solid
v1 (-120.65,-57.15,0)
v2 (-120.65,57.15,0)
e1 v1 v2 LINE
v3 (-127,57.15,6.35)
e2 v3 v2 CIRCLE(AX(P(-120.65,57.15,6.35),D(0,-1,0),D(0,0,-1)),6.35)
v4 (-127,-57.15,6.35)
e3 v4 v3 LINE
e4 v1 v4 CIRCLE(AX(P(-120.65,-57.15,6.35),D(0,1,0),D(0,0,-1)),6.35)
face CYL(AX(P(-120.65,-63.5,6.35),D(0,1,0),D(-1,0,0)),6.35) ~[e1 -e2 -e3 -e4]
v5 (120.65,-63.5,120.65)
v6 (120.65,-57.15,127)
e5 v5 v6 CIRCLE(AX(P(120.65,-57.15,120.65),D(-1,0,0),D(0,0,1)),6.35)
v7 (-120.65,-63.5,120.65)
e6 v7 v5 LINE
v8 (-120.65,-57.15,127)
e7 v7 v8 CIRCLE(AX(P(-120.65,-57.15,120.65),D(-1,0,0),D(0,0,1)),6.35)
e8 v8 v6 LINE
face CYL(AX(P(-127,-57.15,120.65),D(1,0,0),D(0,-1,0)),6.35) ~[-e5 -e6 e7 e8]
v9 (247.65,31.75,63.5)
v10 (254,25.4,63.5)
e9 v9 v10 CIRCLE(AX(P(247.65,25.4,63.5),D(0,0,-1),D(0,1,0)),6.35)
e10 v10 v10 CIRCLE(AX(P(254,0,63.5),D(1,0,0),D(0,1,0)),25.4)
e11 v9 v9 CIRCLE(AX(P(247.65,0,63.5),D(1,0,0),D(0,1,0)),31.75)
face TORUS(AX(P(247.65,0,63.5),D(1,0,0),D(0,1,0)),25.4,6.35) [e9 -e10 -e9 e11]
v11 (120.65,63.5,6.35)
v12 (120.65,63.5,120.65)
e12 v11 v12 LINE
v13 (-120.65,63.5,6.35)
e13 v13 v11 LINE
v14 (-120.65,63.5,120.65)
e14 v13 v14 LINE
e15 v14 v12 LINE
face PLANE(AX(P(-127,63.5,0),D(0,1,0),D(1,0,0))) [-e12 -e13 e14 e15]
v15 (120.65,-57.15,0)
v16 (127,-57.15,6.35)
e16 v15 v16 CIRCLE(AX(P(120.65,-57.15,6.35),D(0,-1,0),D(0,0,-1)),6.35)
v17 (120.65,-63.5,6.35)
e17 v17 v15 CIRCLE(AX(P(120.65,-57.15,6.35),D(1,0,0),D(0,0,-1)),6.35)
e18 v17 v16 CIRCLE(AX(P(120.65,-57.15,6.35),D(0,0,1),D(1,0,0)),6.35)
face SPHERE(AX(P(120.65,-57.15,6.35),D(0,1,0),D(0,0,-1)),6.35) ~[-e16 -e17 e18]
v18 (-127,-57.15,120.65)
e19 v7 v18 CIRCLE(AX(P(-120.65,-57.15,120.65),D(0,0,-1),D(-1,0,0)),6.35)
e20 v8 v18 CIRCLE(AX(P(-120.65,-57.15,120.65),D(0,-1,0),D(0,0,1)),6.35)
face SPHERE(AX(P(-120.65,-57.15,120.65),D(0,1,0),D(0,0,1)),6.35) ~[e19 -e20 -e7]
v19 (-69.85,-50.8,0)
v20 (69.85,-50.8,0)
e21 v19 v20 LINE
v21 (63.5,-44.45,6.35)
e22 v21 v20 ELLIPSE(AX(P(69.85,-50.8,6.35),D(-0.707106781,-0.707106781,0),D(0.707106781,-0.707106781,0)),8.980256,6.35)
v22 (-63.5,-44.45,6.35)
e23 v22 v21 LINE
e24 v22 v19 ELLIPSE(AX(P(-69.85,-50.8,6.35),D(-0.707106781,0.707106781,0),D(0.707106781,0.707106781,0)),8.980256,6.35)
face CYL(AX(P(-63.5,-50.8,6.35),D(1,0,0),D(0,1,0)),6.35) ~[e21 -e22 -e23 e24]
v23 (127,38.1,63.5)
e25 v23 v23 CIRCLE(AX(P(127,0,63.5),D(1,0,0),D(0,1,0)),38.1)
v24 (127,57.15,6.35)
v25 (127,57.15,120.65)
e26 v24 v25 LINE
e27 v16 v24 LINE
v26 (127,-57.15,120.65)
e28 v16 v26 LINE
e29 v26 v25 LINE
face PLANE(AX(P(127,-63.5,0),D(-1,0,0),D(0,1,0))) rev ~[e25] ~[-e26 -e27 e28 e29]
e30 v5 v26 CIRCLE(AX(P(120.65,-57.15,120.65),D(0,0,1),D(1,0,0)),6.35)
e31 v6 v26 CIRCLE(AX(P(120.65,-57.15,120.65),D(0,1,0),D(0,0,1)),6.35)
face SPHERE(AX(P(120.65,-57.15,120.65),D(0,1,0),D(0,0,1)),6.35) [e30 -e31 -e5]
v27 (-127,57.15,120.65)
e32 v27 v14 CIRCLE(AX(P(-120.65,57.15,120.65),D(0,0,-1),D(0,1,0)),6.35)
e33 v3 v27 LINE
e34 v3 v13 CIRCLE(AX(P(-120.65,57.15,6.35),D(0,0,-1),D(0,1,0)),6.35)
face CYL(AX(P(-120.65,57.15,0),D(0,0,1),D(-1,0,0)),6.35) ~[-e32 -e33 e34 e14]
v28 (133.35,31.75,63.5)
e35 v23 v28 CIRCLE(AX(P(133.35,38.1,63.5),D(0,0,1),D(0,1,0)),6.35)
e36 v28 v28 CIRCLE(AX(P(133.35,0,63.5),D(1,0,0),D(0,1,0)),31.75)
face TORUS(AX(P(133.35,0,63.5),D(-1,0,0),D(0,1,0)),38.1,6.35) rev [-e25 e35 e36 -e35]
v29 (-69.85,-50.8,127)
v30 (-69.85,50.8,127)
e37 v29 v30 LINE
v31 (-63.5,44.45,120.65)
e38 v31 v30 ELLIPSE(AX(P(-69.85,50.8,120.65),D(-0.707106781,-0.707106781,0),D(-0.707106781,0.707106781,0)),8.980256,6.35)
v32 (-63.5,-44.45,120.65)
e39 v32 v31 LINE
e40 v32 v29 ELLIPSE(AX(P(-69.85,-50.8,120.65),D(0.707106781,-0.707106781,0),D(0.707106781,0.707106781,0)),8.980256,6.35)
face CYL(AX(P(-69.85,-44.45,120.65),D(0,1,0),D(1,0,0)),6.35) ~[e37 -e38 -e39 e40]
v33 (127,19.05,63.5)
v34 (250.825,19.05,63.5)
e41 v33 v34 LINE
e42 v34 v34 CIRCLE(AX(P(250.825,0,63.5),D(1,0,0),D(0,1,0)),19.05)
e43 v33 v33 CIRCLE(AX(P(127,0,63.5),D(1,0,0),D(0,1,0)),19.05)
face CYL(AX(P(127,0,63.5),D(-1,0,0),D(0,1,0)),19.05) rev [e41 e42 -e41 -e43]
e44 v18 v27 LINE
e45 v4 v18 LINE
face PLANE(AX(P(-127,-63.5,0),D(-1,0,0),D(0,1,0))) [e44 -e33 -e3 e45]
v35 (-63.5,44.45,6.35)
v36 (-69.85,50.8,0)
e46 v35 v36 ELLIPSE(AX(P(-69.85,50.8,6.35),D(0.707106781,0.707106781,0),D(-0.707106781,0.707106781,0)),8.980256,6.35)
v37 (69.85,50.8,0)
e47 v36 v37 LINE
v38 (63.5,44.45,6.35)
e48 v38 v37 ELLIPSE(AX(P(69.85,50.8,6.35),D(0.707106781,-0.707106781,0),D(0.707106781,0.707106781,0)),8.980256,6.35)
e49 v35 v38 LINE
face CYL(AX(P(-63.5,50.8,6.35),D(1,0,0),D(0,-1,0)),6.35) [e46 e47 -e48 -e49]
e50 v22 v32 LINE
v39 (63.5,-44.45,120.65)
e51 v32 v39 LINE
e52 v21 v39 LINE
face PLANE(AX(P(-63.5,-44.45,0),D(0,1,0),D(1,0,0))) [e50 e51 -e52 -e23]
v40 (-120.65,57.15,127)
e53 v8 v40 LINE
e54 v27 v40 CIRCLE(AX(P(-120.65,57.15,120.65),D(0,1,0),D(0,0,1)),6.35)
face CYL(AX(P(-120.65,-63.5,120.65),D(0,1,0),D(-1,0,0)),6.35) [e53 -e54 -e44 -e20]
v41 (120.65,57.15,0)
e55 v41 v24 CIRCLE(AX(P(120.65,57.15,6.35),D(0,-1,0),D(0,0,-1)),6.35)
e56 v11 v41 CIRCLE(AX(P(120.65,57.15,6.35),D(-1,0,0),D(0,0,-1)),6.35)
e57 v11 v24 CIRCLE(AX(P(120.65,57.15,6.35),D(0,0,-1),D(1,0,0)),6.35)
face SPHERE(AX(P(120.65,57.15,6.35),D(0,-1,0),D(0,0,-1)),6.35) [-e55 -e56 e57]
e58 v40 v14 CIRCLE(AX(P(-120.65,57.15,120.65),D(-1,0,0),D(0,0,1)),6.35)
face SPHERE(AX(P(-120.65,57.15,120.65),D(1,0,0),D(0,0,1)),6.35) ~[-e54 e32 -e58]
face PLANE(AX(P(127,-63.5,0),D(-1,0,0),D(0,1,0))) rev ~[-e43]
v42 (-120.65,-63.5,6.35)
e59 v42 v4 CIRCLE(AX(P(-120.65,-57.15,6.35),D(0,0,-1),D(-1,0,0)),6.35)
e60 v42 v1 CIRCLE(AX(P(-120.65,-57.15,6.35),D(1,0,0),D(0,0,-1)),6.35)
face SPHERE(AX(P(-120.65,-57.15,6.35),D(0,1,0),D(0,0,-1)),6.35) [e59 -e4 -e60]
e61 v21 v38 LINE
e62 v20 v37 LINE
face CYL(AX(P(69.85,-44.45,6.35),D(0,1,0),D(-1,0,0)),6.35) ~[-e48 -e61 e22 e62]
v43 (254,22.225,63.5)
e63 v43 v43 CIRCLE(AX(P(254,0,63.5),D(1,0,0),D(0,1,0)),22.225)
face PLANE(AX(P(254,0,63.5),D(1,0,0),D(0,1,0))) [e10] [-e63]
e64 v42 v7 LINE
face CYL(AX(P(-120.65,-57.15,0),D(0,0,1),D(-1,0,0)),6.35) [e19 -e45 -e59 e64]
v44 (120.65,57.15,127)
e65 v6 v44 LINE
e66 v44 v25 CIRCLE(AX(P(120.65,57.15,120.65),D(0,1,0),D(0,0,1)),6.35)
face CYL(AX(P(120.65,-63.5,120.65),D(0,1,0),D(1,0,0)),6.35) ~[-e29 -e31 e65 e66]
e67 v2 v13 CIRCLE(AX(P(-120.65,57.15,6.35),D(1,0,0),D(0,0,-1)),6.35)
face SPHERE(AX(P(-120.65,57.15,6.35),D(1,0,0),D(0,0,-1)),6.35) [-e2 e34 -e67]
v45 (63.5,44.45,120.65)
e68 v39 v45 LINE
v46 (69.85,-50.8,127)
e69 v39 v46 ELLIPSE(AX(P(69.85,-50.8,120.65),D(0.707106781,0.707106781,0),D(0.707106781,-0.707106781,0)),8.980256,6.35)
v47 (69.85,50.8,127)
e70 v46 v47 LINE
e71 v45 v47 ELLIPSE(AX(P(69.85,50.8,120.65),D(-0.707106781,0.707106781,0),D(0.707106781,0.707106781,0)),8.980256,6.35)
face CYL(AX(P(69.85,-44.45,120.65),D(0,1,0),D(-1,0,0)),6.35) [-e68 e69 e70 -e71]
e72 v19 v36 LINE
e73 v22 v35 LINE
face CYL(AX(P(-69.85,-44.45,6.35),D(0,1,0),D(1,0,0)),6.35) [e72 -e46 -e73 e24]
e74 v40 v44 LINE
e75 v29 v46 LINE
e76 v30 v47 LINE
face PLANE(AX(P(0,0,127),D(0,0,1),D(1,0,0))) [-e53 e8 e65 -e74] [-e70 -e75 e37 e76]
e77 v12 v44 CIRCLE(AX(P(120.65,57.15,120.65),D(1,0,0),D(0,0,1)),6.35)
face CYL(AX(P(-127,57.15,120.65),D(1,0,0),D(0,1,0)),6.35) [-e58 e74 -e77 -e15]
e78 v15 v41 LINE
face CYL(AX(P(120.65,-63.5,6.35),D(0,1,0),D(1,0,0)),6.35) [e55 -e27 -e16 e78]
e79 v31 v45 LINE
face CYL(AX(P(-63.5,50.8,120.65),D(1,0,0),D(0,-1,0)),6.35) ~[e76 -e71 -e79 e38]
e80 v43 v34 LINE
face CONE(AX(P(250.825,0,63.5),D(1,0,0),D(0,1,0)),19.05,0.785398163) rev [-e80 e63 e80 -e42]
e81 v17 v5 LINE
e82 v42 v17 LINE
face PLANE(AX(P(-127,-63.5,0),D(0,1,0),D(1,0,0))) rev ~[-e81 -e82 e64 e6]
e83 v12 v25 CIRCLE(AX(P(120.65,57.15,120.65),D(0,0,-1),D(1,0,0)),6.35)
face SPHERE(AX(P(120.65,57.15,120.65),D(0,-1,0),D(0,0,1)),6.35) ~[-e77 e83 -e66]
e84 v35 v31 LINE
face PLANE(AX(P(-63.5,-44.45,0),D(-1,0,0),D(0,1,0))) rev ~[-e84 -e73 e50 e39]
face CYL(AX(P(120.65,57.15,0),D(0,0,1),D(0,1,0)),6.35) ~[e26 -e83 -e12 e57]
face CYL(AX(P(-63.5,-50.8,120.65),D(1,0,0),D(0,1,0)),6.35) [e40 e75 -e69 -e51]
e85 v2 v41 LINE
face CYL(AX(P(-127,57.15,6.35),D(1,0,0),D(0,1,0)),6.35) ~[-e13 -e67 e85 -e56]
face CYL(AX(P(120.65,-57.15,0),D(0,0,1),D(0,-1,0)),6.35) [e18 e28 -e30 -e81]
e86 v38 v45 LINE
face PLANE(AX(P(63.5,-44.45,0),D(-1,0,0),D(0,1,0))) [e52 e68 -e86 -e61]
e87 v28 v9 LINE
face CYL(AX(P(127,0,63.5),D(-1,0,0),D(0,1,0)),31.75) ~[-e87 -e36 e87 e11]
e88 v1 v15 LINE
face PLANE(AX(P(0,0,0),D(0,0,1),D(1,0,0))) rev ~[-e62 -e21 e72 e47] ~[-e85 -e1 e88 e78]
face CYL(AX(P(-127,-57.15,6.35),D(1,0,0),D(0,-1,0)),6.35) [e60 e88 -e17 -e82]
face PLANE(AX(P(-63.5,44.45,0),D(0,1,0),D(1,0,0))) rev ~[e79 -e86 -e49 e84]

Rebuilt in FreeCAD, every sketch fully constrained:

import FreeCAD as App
import Part
import Sketcher

V = App.Vector
Q = App.Units.Quantity


def edges_at(feature, points):
    """Names of the edges that pass closest to the given points."""
    edges = feature.Shape.Edges
    near = lambda p: min(range(len(edges)), key=lambda i: edges[i].distToShape(Part.Vertex(*p))[0])
    return sorted({f"Edge{near(p) + 1}" for p in points})

doc = App.newDocument("Part")
body = doc.addObject("PartDesign::Body", "Body")

# Sketch on XY plane
sketch1 = body.newObject("Sketcher::SketchObject", "Sketch")
sketch1.AttachmentSupport = (doc.getObject("XY_Plane"), [""])
sketch1.MapMode = "FlatFace"
sketch1.addGeometry(Part.LineSegment(V(-127, 64, 0), V(-127, -64, 0)), False)
sketch1.addGeometry(Part.LineSegment(V(-127, -64, 0), V(127, -64, 0)), False)
sketch1.addGeometry(Part.LineSegment(V(127, -64, 0), V(127, 64, 0)), False)
sketch1.addGeometry(Part.LineSegment(V(127, 64, 0), V(-127, 64, 0)), False)
sketch1.addGeometry(Part.LineSegment(V(64, -44, 0), V(-64, -44, 0)), False)
sketch1.addGeometry(Part.LineSegment(V(-64, -44, 0), V(-64, 44, 0)), False)
sketch1.addGeometry(Part.LineSegment(V(-64, 44, 0), V(64, 44, 0)), False)
sketch1.addGeometry(Part.LineSegment(V(64, 44, 0), V(64, -44, 0)), False)
sketch1.addConstraint(Sketcher.Constraint("Coincident", 0, 2, 1, 1))
sketch1.addConstraint(Sketcher.Constraint("Coincident", 1, 2, 2, 1))
sketch1.addConstraint(Sketcher.Constraint("Coincident", 2, 2, 3, 1))
sketch1.addConstraint(Sketcher.Constraint("Coincident", 3, 2, 0, 1))
sketch1.addConstraint(Sketcher.Constraint("Coincident", 4, 2, 5, 1))
sketch1.addConstraint(Sketcher.Constraint("Coincident", 5, 2, 6, 1))
sketch1.addConstraint(Sketcher.Constraint("Coincident", 6, 2, 7, 1))
sketch1.addConstraint(Sketcher.Constraint("Coincident", 7, 2, 4, 1))
sketch1.addConstraint(Sketcher.Constraint("Vertical", 0))
sketch1.addConstraint(Sketcher.Constraint("Horizontal", 1))
sketch1.addConstraint(Sketcher.Constraint("Vertical", 2))
sketch1.addConstraint(Sketcher.Constraint("Horizontal", 3))
sketch1.addConstraint(Sketcher.Constraint("Horizontal", 4))
sketch1.addConstraint(Sketcher.Constraint("Vertical", 5))
sketch1.addConstraint(Sketcher.Constraint("Horizontal", 6))
sketch1.addConstraint(Sketcher.Constraint("Vertical", 7))
sketch1.addConstraint(Sketcher.Constraint("Symmetric", 0, 2, 2, 2, -1, 1))
sketch1.addConstraint(Sketcher.Constraint("Symmetric", 4, 2, 6, 2, -1, 1))
sketch1.addConstraint(Sketcher.Constraint("Equal", 6, 0))
sketch1.addConstraint(Sketcher.Constraint("DistanceX", 1, 1, 1, 2, Q("10 in")))
sketch1.addConstraint(Sketcher.Constraint("DistanceX", 4, 2, 4, 1, Q("5 in")))
sketch1.addConstraint(Sketcher.Constraint("DistanceY", 5, 1, 5, 2, Q("3.5 in")))
pad1 = body.newObject("PartDesign::Pad", "Pad")
pad1.Profile = sketch1
pad1.Length = Q("5 in")
doc.recompute()

fillet = body.newObject("PartDesign::Fillet", "Fillet")
fillet.Base = (pad1, edges_at(pad1, [
    (127, 0, 127),
    (0, 63.5, 127),
    (-127, 0, 127),
    (0, -63.5, 127),
    (0, -44.45, 127),
    (-63.5, 0, 127),
    (0, 44.45, 127),
    (63.5, 0, 127),
    (127, 0, 0),
    (0, 63.5, 0),
    (-127, 0, 0),
    (0, -63.5, 0),
    (0, -44.45, 0),
    (-63.5, 0, 0),
    (0, 44.45, 0),
    (63.5, 0, 0),
    (-127, -63.5, 63.5),
    (127, -63.5, 63.5),
    (127, 63.5, 63.5),
    (-127, 63.5, 63.5),
]))
fillet.Radius = Q("0.25 in")

# Sketch on YZ plane
sketch2 = body.newObject("Sketcher::SketchObject", "Sketch001")
sketch2.AttachmentSupport = (doc.getObject("YZ_Plane"), [""])
sketch2.MapMode = "FlatFace"
sketch2.AttachmentOffset = App.Placement(V(0, 0, 5 * 25.4), App.Rotation())
sketch2.addGeometry(Part.Circle(V(0, 64, 0), V(0, 0, 1), 32), False)
sketch2.addGeometry(Part.Circle(V(0, 64, 0), V(0, 0, 1), 19), False)
sketch2.addConstraint(Sketcher.Constraint("Coincident", 1, 3, 0, 3))
sketch2.addConstraint(Sketcher.Constraint("PointOnObject", 0, 3, -2))
sketch2.addConstraint(Sketcher.Constraint("Diameter", 0, Q("2.5 in")))
sketch2.addConstraint(Sketcher.Constraint("Diameter", 1, Q("1.5 in")))
sketch2.addConstraint(Sketcher.Constraint("DistanceY", -1, 1, 0, 3, Q("2.5 in")))
pad2 = body.newObject("PartDesign::Pad", "Pad001")
pad2.Profile = sketch2
pad2.Length = Q("5 in")
doc.recompute()

fillet2 = body.newObject("PartDesign::Fillet", "Fillet001")
fillet2.Base = (pad2, edges_at(pad2, [(127, -31.75, 63.5), (254, -31.75, 63.5)]))
fillet2.Radius = Q("0.25 in")
doc.recompute()

chamfer = body.newObject("PartDesign::Chamfer", "Chamfer")
chamfer.Base = (fillet2, edges_at(fillet2, [(254, -19.05, 63.5)]))
chamfer.Size = Q("0.125 in")

doc.recompute()
